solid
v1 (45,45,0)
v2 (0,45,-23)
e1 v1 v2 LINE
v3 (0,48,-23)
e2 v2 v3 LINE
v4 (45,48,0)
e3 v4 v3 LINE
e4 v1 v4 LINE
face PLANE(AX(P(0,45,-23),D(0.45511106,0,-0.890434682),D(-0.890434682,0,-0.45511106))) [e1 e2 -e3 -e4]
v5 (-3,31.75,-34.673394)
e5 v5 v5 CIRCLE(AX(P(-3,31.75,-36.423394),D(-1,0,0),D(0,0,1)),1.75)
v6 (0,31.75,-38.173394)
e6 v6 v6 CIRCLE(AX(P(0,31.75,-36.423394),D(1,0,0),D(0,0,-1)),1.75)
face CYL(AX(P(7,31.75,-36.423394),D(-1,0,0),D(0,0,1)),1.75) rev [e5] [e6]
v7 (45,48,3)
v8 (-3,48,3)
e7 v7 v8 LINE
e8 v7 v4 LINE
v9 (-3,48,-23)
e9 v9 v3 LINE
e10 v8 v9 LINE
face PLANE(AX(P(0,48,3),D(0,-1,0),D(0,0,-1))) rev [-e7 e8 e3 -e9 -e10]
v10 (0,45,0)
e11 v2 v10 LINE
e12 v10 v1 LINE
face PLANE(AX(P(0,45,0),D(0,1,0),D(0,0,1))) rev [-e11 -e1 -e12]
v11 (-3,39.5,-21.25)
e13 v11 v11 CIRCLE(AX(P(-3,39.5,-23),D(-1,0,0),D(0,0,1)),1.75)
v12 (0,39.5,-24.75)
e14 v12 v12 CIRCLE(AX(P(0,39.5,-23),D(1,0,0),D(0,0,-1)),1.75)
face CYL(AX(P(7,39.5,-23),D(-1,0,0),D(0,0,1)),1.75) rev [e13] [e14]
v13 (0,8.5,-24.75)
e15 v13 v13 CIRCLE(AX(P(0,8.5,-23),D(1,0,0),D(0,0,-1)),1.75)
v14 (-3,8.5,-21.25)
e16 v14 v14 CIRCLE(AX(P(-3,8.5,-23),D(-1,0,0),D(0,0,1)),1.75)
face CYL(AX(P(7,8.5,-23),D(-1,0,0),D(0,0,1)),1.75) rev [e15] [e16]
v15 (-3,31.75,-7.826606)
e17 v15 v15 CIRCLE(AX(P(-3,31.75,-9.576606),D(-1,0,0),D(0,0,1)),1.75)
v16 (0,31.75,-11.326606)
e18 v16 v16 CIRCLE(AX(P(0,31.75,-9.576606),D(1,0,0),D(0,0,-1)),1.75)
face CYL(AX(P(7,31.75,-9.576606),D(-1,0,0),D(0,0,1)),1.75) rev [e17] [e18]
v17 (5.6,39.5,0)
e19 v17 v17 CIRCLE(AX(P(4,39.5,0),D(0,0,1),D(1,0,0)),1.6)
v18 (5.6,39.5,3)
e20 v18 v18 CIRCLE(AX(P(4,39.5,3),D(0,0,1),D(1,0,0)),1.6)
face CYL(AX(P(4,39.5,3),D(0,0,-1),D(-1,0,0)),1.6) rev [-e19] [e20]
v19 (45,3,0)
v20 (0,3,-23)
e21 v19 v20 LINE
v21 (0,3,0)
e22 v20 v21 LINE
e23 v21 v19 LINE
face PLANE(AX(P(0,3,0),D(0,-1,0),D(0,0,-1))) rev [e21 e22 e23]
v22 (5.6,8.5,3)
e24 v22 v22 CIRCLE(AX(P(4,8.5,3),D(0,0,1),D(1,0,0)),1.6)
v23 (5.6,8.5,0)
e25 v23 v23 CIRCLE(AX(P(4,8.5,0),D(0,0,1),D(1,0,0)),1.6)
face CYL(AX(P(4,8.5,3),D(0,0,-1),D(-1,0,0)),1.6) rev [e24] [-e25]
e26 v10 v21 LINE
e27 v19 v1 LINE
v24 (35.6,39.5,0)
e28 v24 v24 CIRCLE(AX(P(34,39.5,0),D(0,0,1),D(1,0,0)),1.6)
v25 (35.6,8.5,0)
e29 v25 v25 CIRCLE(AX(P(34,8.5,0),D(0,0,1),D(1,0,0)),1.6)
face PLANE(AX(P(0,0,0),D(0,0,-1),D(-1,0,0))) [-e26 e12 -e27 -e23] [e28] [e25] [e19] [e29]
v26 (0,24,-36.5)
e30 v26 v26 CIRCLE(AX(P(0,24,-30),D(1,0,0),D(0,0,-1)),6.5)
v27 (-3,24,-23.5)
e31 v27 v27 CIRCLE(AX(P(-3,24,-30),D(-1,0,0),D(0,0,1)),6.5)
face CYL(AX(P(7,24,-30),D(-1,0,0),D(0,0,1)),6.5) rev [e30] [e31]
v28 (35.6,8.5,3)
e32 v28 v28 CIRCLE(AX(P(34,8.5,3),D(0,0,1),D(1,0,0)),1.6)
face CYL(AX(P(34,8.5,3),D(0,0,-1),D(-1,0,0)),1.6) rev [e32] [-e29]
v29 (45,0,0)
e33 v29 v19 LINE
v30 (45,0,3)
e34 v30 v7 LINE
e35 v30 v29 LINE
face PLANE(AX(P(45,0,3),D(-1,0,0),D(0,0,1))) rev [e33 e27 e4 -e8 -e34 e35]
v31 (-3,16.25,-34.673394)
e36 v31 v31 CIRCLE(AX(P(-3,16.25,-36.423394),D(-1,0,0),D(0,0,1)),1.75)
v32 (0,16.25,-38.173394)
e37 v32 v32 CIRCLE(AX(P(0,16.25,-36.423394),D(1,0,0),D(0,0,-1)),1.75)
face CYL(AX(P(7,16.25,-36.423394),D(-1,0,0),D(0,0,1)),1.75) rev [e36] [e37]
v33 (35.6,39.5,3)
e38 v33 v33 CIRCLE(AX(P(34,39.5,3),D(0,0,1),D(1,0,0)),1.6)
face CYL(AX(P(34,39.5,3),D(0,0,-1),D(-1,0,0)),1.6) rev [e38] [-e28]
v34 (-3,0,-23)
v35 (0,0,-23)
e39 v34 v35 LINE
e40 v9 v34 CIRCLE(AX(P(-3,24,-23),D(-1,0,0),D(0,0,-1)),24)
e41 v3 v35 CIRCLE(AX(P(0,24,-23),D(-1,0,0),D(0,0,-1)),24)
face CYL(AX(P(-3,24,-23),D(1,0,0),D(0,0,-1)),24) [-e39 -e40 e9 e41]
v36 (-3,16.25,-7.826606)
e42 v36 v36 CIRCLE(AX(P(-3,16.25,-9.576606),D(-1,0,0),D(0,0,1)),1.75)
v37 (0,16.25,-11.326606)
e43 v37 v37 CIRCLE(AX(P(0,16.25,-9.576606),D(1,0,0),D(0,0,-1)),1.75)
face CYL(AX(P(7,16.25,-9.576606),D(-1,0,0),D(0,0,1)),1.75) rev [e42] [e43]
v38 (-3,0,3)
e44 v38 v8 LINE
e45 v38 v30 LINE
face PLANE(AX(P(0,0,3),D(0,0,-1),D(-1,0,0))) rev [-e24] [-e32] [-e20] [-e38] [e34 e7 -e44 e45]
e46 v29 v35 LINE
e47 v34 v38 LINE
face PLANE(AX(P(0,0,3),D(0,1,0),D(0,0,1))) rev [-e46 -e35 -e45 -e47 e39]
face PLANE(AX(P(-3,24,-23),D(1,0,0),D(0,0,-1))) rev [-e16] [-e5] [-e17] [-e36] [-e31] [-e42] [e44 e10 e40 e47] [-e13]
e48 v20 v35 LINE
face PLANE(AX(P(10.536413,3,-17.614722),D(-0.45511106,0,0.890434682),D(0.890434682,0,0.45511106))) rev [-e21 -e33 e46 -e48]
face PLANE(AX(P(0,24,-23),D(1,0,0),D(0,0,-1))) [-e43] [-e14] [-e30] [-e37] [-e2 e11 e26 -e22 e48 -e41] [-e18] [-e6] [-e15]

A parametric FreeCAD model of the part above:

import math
import FreeCAD as App
import Part
import Sketcher
from FreeCAD import Vector

doc = App.newDocument("Part")
body = doc.addObject("PartDesign::Body", "Body")

sketch1 = doc.addObject("Sketcher::SketchObject", "Sketch")
body.addObject(sketch1)
sketch1.AttachmentSupport = (doc.XY_Plane, [""])
sketch1.MapMode = "FlatFace"
sketch1.addGeometry(Part.LineSegment(Vector(0, 48, 0), Vector(0, 0, 0)), False)
sketch1.addGeometry(Part.LineSegment(Vector(0, 0, 0), Vector(45, 0, 0)), False)
sketch1.addGeometry(Part.LineSegment(Vector(45, 0, 0), Vector(45, 48, 0)), False)
sketch1.addGeometry(Part.LineSegment(Vector(45, 48, 0), Vector(0, 48, 0)), False)
sketch1.addGeometry(Part.Circle(Vector(4, 8.5, 0), Vector(0, 0, 1), 1.6), False)
sketch1.addGeometry(Part.Circle(Vector(34, 8.5, 0), Vector(0, 0, 1), 1.6), False)
sketch1.addGeometry(Part.Circle(Vector(4, 39.5, 0), Vector(0, 0, 1), 1.6), False)
sketch1.addGeometry(Part.Circle(Vector(34, 39.5, 0), Vector(0, 0, 1), 1.6), False)
sketch1.addConstraint(Sketcher.Constraint("Coincident", 0, 2, 1, 1))
sketch1.addConstraint(Sketcher.Constraint("Coincident", 1, 2, 2, 1))
sketch1.addConstraint(Sketcher.Constraint("Coincident", 2, 2, 3, 1))
sketch1.addConstraint(Sketcher.Constraint("Coincident", 3, 2, 0, 1))
sketch1.addConstraint(Sketcher.Constraint("Vertical", 0))
sketch1.addConstraint(Sketcher.Constraint("Horizontal", 1))
sketch1.addConstraint(Sketcher.Constraint("Vertical", 2))
sketch1.addConstraint(Sketcher.Constraint("Horizontal", 3))
sketch1.addConstraint(Sketcher.Constraint("Coincident", 0, 2, -1, 1))
sketch1.addConstraint(Sketcher.Constraint("Equal", 4, 5))
sketch1.addConstraint(Sketcher.Constraint("Equal", 5, 6))
sketch1.addConstraint(Sketcher.Constraint("Equal", 6, 7))
sketch1.addConstraint(Sketcher.Constraint("Horizontal", 4, 3, 5, 3))
sketch1.addConstraint(Sketcher.Constraint("Horizontal", 6, 3, 7, 3))
sketch1.addConstraint(Sketcher.Constraint("Vertical", 4, 3, 6, 3))
sketch1.addConstraint(Sketcher.Constraint("Vertical", 5, 3, 7, 3))
sketch1.addConstraint(Sketcher.Constraint("Diameter", 4, 3.2))
sketch1.addConstraint(Sketcher.Constraint("DistanceX", 1, 1, 1, 2, 45.0))
sketch1.addConstraint(Sketcher.Constraint("DistanceY", 0, 2, 0, 1, 48.0))
sketch1.addConstraint(Sketcher.Constraint("DistanceX", -1, 1, 4, 3, 4.0))
sketch1.addConstraint(Sketcher.Constraint("DistanceX", -1, 1, 5, 3, 34.0))
sketch1.addConstraint(Sketcher.Constraint("DistanceY", 4, 3, 6, 3, 31.0))
sketch1.addConstraint(Sketcher.Constraint("DistanceY", -1, 1, 4, 3, 8.5))
pad1 = doc.addObject("PartDesign::Pad", "Pad")
body.addObject(pad1)
pad1.Profile = sketch1
pad1.Length = 3

sketch2 = doc.addObject("Sketcher::SketchObject", "Sketch001")
body.addObject(sketch2)
sketch2.AttachmentSupport = (doc.YZ_Plane, [""])
sketch2.MapMode = "FlatFace"
sketch2.addGeometry(Part.LineSegment(Vector(48, 3, 0), Vector(48, -23, 0)), False)
sketch2.addGeometry(Part.ArcOfCircle(Part.Circle(Vector(24, -23, 0), Vector(0, 0, 1), 24), math.radians(180), math.radians(360)), False)
sketch2.addGeometry(Part.LineSegment(Vector(0, -23, 0), Vector(0, 3, 0)), False)
sketch2.addGeometry(Part.LineSegment(Vector(0, 3, 0), Vector(48, 3, 0)), False)
sketch2.addConstraint(Sketcher.Constraint("Tangent", 0, 2, 1, 2))
sketch2.addConstraint(Sketcher.Constraint("Tangent", 1, 1, 2, 1))
sketch2.addConstraint(Sketcher.Constraint("Coincident", 2, 2, 3, 1))
sketch2.addConstraint(Sketcher.Constraint("Coincident", 3, 2, 0, 1))
sketch2.addConstraint(Sketcher.Constraint("Vertical", 0))
sketch2.addConstraint(Sketcher.Constraint("Vertical", 2))
sketch2.addConstraint(Sketcher.Constraint("Horizontal", 3))
sketch2.addConstraint(Sketcher.Constraint("PointOnObject", 1, 1, -2))
sketch2.addConstraint(Sketcher.Constraint("Radius", 1, 24.0))
sketch2.addConstraint(Sketcher.Constraint("DistanceY", 0, 2, 0, 1, 26.0))
sketch2.addConstraint(Sketcher.Constraint("DistanceY", 1, 3, -1, 1, 23.0))
pad2 = doc.addObject("PartDesign::Pad", "Pad001")
body.addObject(pad2)
pad2.Profile = sketch2
pad2.Length = 3
pad2.Reversed = True

sketch3 = doc.addObject("Sketcher::SketchObject", "Sketch002")
body.addObject(sketch3)
sketch3.AttachmentSupport = (doc.YZ_Plane, [""])
sketch3.MapMode = "FlatFace"
sketch3.AttachmentOffset = App.Placement(Vector(0, 0, -3), App.Rotation())
sketch3.addGeometry(Part.Circle(Vector(24, -30, 0), Vector(0, 0, 1), 6.5), False)
sketch3.addGeometry(Part.Circle(Vector(39.5, -23, 0), Vector(0, 0, 1), 1.75), False)
sketch3.addGeometry(Part.Circle(Vector(31.75, -9.576606, 0), Vector(0, 0, 1), 1.75), False)
sketch3.addGeometry(Part.Circle(Vector(16.25, -9.576606, 0), Vector(0, 0, 1), 1.75), False)
sketch3.addGeometry(Part.Circle(Vector(8.5, -23, 0), Vector(0, 0, 1), 1.75), False)
sketch3.addGeometry(Part.Circle(Vector(16.25, -36.423394, 0), Vector(0, 0, 1), 1.75), False)
sketch3.addGeometry(Part.Circle(Vector(31.75, -36.423394, 0), Vector(0, 0, 1), 1.75), False)
sketch3.addConstraint(Sketcher.Constraint("Equal", 1, 2))
sketch3.addConstraint(Sketcher.Constraint("Equal", 2, 3))
sketch3.addConstraint(Sketcher.Constraint("Equal", 3, 4))
sketch3.addConstraint(Sketcher.Constraint("Equal", 4, 5))
sketch3.addConstraint(Sketcher.Constraint("Equal", 5, 6))
sketch3.addConstraint(Sketcher.Constraint("Horizontal", 2, 3, 3, 3))
sketch3.addConstraint(Sketcher.Constraint("Horizontal", 1, 3, 4, 3))
sketch3.addConstraint(Sketcher.Constraint("Horizontal", 5, 3, 6, 3))
sketch3.addConstraint(Sketcher.Constraint("Vertical", 3, 3, 5, 3))
sketch3.addConstraint(Sketcher.Constraint("Vertical", 2, 3, 6, 3))
sketch3.addConstraint(Sketcher.Constraint("Diameter", 0, 13.0))
sketch3.addConstraint(Sketcher.Constraint("Diameter", 1, 3.5))
sketch3.addConstraint(Sketcher.Constraint("DistanceX", -1, 1, 0, 3, 24.0))
sketch3.addConstraint(Sketcher.Constraint("DistanceY", 0, 3, -1, 1, 30.0))
sketch3.addConstraint(Sketcher.Constraint("DistanceY", 1, 3, -1, 1, 23.0))
sketch3.addConstraint(Sketcher.Constraint("DistanceX", 4, 3, 1, 3, 31.0))
sketch3.addConstraint(Sketcher.Constraint("DistanceX", -1, 1, 1, 3, 39.5))
sketch3.addConstraint(Sketcher.Constraint("DistanceX", 3, 3, 2, 3, 15.5))
sketch3.addConstraint(Sketcher.Constraint("DistanceX", -1, 1, 2, 3, 31.75))
sketch3.addConstraint(Sketcher.Constraint("DistanceY", 2, 3, -1, 1, 9.576606))
sketch3.addConstraint(Sketcher.Constraint("DistanceY", 5, 3, -1, 1, 36.423394))
pocket1 = doc.addObject("PartDesign::Pocket", "Pocket")
body.addObject(pocket1)
pocket1.Profile = sketch3
pocket1.Length = 10
pocket1.Reversed = True

sketch4 = doc.addObject("Sketcher::SketchObject", "Sketch003")
body.addObject(sketch4)
sketch4.AttachmentSupport = (doc.XZ_Plane, [""])
sketch4.MapMode = "FlatFace"
sketch4.AttachmentOffset = App.Placement(Vector(0, 0, -48), App.Rotation())
sketch4.addGeometry(Part.LineSegment(Vector(45, 0, 0), Vector(0, -23, 0)), False)
sketch4.addGeometry(Part.LineSegment(Vector(0, -23, 0), Vector(0, 0, 0)), False)
sketch4.addGeometry(Part.LineSegment(Vector(0, 0, 0), Vector(45, 0, 0)), False)
sketch4.addConstraint(Sketcher.Constraint("Coincident", 0, 2, 1, 1))
sketch4.addConstraint(Sketcher.Constraint("Coincident", 1, 2, 2, 1))
sketch4.addConstraint(Sketcher.Constraint("Coincident", 2, 2, 0, 1))
sketch4.addConstraint(Sketcher.Constraint("Vertical", 1))
sketch4.addConstraint(Sketcher.Constraint("Horizontal", 2))
sketch4.addConstraint(Sketcher.Constraint("Coincident", 1, 2, -1, 1))
sketch4.addConstraint(Sketcher.Constraint("DistanceX", 2, 1, 2, 2, 45.0))
sketch4.addConstraint(Sketcher.Constraint("DistanceY", 1, 1, 1, 2, 23.0))
pad3 = doc.addObject("PartDesign::Pad", "Pad002")
body.addObject(pad3)
pad3.Profile = sketch4
pad3.Length = 3

sketch5 = doc.addObject("Sketcher::SketchObject", "Sketch004")
body.addObject(sketch5)
sketch5.AttachmentSupport = (doc.XZ_Plane, [""])
sketch5.MapMode = "FlatFace"
sketch5.addGeometry(Part.LineSegment(Vector(45, 0, 0), Vector(0, -23, 0)), False)
sketch5.addGeometry(Part.LineSegment(Vector(0, -23, 0), Vector(0, 0, 0)), False)
sketch5.addGeometry(Part.LineSegment(Vector(0, 0, 0), Vector(45, 0, 0)), False)
sketch5.addConstraint(Sketcher.Constraint("Coincident", 0, 2, 1, 1))
sketch5.addConstraint(Sketcher.Constraint("Coincident", 1, 2, 2, 1))
sketch5.addConstraint(Sketcher.Constraint("Coincident", 2, 2, 0, 1))
sketch5.addConstraint(Sketcher.Constraint("Vertical", 1))
sketch5.addConstraint(Sketcher.Constraint("Horizontal", 2))
sketch5.addConstraint(Sketcher.Constraint("Coincident", 1, 2, -1, 1))
sketch5.addConstraint(Sketcher.Constraint("DistanceX", 2, 1, 2, 2, 45.0))
sketch5.addConstraint(Sketcher.Constraint("DistanceY", 1, 1, 1, 2, 23.0))
pad4 = doc.addObject("PartDesign::Pad", "Pad003")
body.addObject(pad4)
pad4.Profile = sketch5
pad4.Length = 3
pad4.Reversed = True

doc.recompute()
